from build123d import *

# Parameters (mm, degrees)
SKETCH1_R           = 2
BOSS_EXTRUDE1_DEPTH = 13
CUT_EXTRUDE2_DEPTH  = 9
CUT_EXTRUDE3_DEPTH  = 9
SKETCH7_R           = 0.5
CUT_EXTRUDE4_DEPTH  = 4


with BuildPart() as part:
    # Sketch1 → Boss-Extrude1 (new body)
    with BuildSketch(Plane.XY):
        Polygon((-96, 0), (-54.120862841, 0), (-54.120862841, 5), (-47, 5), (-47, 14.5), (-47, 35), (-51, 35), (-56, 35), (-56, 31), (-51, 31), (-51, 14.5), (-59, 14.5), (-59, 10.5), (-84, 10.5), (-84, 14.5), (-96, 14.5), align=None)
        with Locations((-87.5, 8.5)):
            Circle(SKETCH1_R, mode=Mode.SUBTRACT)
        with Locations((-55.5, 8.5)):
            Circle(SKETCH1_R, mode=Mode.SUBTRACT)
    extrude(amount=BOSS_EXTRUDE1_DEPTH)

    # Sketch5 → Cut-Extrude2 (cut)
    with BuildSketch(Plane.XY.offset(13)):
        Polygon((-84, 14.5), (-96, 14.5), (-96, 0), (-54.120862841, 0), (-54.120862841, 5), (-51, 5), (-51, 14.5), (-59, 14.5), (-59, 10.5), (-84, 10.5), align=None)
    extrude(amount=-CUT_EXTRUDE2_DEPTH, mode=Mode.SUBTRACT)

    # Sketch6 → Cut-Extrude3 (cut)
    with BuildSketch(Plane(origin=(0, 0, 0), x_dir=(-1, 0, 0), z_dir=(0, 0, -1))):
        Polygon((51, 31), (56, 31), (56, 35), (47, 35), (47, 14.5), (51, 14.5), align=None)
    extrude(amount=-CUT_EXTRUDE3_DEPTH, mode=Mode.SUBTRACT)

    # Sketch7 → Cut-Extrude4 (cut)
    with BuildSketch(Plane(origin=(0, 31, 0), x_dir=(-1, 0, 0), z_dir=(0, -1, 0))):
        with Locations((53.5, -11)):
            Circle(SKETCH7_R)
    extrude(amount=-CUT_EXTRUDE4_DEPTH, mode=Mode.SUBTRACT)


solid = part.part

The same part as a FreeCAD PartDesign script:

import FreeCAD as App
import Part
import Sketcher

V = App.Vector
Q = App.Units.Quantity


def add_polygon(sketch, points):
    """Adds a closed chain of lines whose ends are joined by coincident constraints."""
    first, n = sketch.GeometryCount, len(points)
    for a, b in zip(points, points[1:] + points[:1]):
        sketch.addGeometry(Part.LineSegment(App.Vector(*a, 0), App.Vector(*b, 0)), False)
    for i in range(n):
        sketch.addConstraint(Sketcher.Constraint("Coincident", first + i, 2, first + (i + 1) % n, 1))

doc = App.newDocument("Part")
body = doc.addObject("PartDesign::Body", "Body")

sketch1 = body.newObject("Sketcher::SketchObject", "Sketch")
sketch1.AttachmentSupport = (doc.getObject("XY_Plane"), [""])
sketch1.MapMode = "FlatFace"
add_polygon(sketch1, [(-96, 0), (-54.1, 0), (-54.1, 5), (-47, 5), (-47, 35), (-56, 35), (-56, 31), (-51, 31), (-51, 14.5), (-59, 14.5), (-59, 10.5), (-84, 10.5), (-84, 14.5), (-96, 14.5)])
sketch1.addGeometry(Part.Circle(V(-87.5, 8.5, 0), V(0, 0, 1), 2), False)
sketch1.addGeometry(Part.Circle(V(-55.5, 8.5, 0), V(0, 0, 1), 2), False)
sketch1.addConstraint(Sketcher.Constraint("Horizontal", 0))
sketch1.addConstraint(Sketcher.Constraint("Vertical", 1))
sketch1.addConstraint(Sketcher.Constraint("Horizontal", 2))
sketch1.addConstraint(Sketcher.Constraint("Vertical", 3))
sketch1.addConstraint(Sketcher.Constraint("Horizontal", 4))
sketch1.addConstraint(Sketcher.Constraint("Vertical", 5))
sketch1.addConstraint(Sketcher.Constraint("Horizontal", 6))
sketch1.addConstraint(Sketcher.Constraint("Vertical", 7))
sketch1.addConstraint(Sketcher.Constraint("Horizontal", 8))
sketch1.addConstraint(Sketcher.Constraint("Vertical", 9))
sketch1.addConstraint(Sketcher.Constraint("Horizontal", 10))
sketch1.addConstraint(Sketcher.Constraint("Vertical", 11))
sketch1.addConstraint(Sketcher.Constraint("Horizontal", 12))
sketch1.addConstraint(Sketcher.Constraint("Vertical", 13))
sketch1.addConstraint(Sketcher.Constraint("Equal", 14, 15))
sketch1.addConstraint(Sketcher.Constraint("PointOnObject", 0, 2, -1))
sketch1.addConstraint(Sketcher.Constraint("Horizontal", 14, 3, 15, 3))
sketch1.addConstraint(Sketcher.Constraint("Horizontal", 8, 2, 11, 2))
sketch1.addConstraint(Sketcher.Constraint("Equal", 6, 1))
sketch1.addConstraint(Sketcher.Constraint("Equal", 5, 9))
sketch1.addConstraint(Sketcher.Constraint("Diameter", 14, Q("4 mm")))
sketch1.addConstraint(Sketcher.Constraint("DistanceX", 4, 2, 4, 1, Q("9 mm")))
sketch1.addConstraint(Sketcher.Constraint("DistanceX", 6, 1, 6, 2, Q("5 mm")))
sketch1.addConstraint(Sketcher.Constraint("DistanceX", 8, 2, 8, 1, Q("8 mm")))
sketch1.addConstraint(Sketcher.Constraint("DistanceX", 10, 2, 10, 1, Q("25 mm")))
sketch1.addConstraint(Sketcher.Constraint("DistanceX", 12, 2, 12, 1, Q("12 mm")))
sketch1.addConstraint(Sketcher.Constraint("DistanceY", 3, 1, 3, 2, Q("30 mm")))
sketch1.addConstraint(Sketcher.Constraint("DistanceY", 5, 2, 5, 1, Q("4 mm")))
sketch1.addConstraint(Sketcher.Constraint("DistanceY", 7, 2, 7, 1, Q("16.5 mm")))
sketch1.addConstraint(Sketcher.Constraint("DistanceX", 2, 2, -1, 1, Q("47 mm")))
sketch1.addConstraint(Sketcher.Constraint("DistanceX", 14, 3, 15, 3, Q("32 mm")))
sketch1.addConstraint(Sketcher.Constraint("DistanceY", 15, 3, 7, 2, Q("6 mm")))
sketch1.addConstraint(Sketcher.Constraint("DistanceX", 14, 3, -1, 1, Q("87.5 mm")))
sketch1.addConstraint(Sketcher.Constraint("DistanceX", 0, 1, 0, 2, Q("41.879137 mm")))
pad1 = body.newObject("PartDesign::Pad", "Pad")
pad1.Profile = sketch1
pad1.Length = 13

sketch2 = body.newObject("Sketcher::SketchObject", "Sketch001")
sketch2.AttachmentSupport = (doc.getObject("XY_Plane"), [""])
sketch2.MapMode = "FlatFace"
sketch2.AttachmentOffset = App.Placement(V(0, 0, 13), App.Rotation())
add_polygon(sketch2, [(-84, 14.5), (-96, 14.5), (-96, 0), (-54.1, 0), (-54.1, 5), (-51, 5), (-51, 14.5), (-59, 14.5), (-59, 10.5), (-84, 10.5)])
sketch2.addConstraint(Sketcher.Constraint("Horizontal", 0))
sketch2.addConstraint(Sketcher.Constraint("Vertical", 1))
sketch2.addConstraint(Sketcher.Constraint("Horizontal", 2))
sketch2.addConstraint(Sketcher.Constraint("Vertical", 3))
sketch2.addConstraint(Sketcher.Constraint("Horizontal", 4))
sketch2.addConstraint(Sketcher.Constraint("Vertical", 5))
sketch2.addConstraint(Sketcher.Constraint("Horizontal", 6))
sketch2.addConstraint(Sketcher.Constraint("Vertical", 7))
sketch2.addConstraint(Sketcher.Constraint("Horizontal", 8))
sketch2.addConstraint(Sketcher.Constraint("Vertical", 9))
sketch2.addConstraint(Sketcher.Constraint("PointOnObject", 1, 2, -1))
sketch2.addConstraint(Sketcher.Constraint("Horizontal", 0, 2, 5, 2))
sketch2.addConstraint(Sketcher.Constraint("DistanceX", 0, 2, 0, 1, Q("12 mm")))
sketch2.addConstraint(Sketcher.Constraint("DistanceX", 6, 2, 6, 1, Q("8 mm")))
sketch2.addConstraint(Sketcher.Constraint("DistanceX", 8, 2, 8, 1, Q("25 mm")))
sketch2.addConstraint(Sketcher.Constraint("DistanceY", 3, 1, 3, 2, Q("5 mm")))
sketch2.addConstraint(Sketcher.Constraint("DistanceY", 7, 2, 7, 1, Q("4 mm")))
sketch2.addConstraint(Sketcher.Constraint("DistanceY", 1, 2, 1, 1, Q("14.5 mm")))
sketch2.addConstraint(Sketcher.Constraint("DistanceX", 0, 2, -1, 1, Q("96 mm")))
sketch2.addConstraint(Sketcher.Constraint("DistanceX", 2, 1, 2, 2, Q("41.879137 mm")))
pocket1 = body.newObject("PartDesign::Pocket", "Pocket")
pocket1.Profile = sketch2
pocket1.Length = 9

sketch3 = body.newObject("Sketcher::SketchObject", "Sketch002")
sketch3.AttachmentSupport = (doc.getObject("XY_Plane"), [""])
sketch3.MapMode = "FlatFace"
add_polygon(sketch3, [(-51, 31), (-56, 31), (-56, 35), (-47, 35), (-47, 14.5), (-51, 14.5)])
sketch3.addConstraint(Sketcher.Constraint("Horizontal", 0))
sketch3.addConstraint(Sketcher.Constraint("Vertical", 1))
sketch3.addConstraint(Sketcher.Constraint("Horizontal", 2))
sketch3.addConstraint(Sketcher.Constraint("Vertical", 3))
sketch3.addConstraint(Sketcher.Constraint("Horizontal", 4))
sketch3.addConstraint(Sketcher.Constraint("Vertical", 5))
sketch3.addConstraint(Sketcher.Constraint("Equal", 4, 1))
sketch3.addConstraint(Sketcher.Constraint("DistanceX", 0, 2, 0, 1, Q("5 mm")))
sketch3.addConstraint(Sketcher.Constraint("DistanceX", 2, 1, 2, 2, Q("9 mm")))
sketch3.addConstraint(Sketcher.Constraint("DistanceY", 3, 2, 3, 1, Q("20.5 mm")))
sketch3.addConstraint(Sketcher.Constraint("DistanceX", 0, 2, -1, 1, Q("56 mm")))
sketch3.addConstraint(Sketcher.Constraint("DistanceY", -1, 1, 0, 2, Q("31 mm")))
pocket2 = body.newObject("PartDesign::Pocket", "Pocket001")
pocket2.Profile = sketch3
pocket2.Length = 9
pocket2.Reversed = True

sketch4 = body.newObject("Sketcher::SketchObject", "Sketch003")
sketch4.AttachmentSupport = (doc.getObject("XZ_Plane"), [""])
sketch4.MapMode = "FlatFace"
sketch4.AttachmentOffset = App.Placement(V(0, 0, -31), App.Rotation())
sketch4.addGeometry(Part.Circle(V(-53.5, 11, 0), V(0, 0, 1), 0.5), False)
sketch4.addConstraint(Sketcher.Constraint("Diameter", 0, Q("1 mm")))
sketch4.addConstraint(Sketcher.Constraint("DistanceY", -1, 1, 0, 3, Q("11 mm")))
sketch4.addConstraint(Sketcher.Constraint("DistanceX", 0, 3, -1, 1, Q("53.5 mm")))
pocket3 = body.newObject("PartDesign::Pocket", "Pocket002")
pocket3.Profile = sketch4
pocket3.Length = 4

doc.recompute()
